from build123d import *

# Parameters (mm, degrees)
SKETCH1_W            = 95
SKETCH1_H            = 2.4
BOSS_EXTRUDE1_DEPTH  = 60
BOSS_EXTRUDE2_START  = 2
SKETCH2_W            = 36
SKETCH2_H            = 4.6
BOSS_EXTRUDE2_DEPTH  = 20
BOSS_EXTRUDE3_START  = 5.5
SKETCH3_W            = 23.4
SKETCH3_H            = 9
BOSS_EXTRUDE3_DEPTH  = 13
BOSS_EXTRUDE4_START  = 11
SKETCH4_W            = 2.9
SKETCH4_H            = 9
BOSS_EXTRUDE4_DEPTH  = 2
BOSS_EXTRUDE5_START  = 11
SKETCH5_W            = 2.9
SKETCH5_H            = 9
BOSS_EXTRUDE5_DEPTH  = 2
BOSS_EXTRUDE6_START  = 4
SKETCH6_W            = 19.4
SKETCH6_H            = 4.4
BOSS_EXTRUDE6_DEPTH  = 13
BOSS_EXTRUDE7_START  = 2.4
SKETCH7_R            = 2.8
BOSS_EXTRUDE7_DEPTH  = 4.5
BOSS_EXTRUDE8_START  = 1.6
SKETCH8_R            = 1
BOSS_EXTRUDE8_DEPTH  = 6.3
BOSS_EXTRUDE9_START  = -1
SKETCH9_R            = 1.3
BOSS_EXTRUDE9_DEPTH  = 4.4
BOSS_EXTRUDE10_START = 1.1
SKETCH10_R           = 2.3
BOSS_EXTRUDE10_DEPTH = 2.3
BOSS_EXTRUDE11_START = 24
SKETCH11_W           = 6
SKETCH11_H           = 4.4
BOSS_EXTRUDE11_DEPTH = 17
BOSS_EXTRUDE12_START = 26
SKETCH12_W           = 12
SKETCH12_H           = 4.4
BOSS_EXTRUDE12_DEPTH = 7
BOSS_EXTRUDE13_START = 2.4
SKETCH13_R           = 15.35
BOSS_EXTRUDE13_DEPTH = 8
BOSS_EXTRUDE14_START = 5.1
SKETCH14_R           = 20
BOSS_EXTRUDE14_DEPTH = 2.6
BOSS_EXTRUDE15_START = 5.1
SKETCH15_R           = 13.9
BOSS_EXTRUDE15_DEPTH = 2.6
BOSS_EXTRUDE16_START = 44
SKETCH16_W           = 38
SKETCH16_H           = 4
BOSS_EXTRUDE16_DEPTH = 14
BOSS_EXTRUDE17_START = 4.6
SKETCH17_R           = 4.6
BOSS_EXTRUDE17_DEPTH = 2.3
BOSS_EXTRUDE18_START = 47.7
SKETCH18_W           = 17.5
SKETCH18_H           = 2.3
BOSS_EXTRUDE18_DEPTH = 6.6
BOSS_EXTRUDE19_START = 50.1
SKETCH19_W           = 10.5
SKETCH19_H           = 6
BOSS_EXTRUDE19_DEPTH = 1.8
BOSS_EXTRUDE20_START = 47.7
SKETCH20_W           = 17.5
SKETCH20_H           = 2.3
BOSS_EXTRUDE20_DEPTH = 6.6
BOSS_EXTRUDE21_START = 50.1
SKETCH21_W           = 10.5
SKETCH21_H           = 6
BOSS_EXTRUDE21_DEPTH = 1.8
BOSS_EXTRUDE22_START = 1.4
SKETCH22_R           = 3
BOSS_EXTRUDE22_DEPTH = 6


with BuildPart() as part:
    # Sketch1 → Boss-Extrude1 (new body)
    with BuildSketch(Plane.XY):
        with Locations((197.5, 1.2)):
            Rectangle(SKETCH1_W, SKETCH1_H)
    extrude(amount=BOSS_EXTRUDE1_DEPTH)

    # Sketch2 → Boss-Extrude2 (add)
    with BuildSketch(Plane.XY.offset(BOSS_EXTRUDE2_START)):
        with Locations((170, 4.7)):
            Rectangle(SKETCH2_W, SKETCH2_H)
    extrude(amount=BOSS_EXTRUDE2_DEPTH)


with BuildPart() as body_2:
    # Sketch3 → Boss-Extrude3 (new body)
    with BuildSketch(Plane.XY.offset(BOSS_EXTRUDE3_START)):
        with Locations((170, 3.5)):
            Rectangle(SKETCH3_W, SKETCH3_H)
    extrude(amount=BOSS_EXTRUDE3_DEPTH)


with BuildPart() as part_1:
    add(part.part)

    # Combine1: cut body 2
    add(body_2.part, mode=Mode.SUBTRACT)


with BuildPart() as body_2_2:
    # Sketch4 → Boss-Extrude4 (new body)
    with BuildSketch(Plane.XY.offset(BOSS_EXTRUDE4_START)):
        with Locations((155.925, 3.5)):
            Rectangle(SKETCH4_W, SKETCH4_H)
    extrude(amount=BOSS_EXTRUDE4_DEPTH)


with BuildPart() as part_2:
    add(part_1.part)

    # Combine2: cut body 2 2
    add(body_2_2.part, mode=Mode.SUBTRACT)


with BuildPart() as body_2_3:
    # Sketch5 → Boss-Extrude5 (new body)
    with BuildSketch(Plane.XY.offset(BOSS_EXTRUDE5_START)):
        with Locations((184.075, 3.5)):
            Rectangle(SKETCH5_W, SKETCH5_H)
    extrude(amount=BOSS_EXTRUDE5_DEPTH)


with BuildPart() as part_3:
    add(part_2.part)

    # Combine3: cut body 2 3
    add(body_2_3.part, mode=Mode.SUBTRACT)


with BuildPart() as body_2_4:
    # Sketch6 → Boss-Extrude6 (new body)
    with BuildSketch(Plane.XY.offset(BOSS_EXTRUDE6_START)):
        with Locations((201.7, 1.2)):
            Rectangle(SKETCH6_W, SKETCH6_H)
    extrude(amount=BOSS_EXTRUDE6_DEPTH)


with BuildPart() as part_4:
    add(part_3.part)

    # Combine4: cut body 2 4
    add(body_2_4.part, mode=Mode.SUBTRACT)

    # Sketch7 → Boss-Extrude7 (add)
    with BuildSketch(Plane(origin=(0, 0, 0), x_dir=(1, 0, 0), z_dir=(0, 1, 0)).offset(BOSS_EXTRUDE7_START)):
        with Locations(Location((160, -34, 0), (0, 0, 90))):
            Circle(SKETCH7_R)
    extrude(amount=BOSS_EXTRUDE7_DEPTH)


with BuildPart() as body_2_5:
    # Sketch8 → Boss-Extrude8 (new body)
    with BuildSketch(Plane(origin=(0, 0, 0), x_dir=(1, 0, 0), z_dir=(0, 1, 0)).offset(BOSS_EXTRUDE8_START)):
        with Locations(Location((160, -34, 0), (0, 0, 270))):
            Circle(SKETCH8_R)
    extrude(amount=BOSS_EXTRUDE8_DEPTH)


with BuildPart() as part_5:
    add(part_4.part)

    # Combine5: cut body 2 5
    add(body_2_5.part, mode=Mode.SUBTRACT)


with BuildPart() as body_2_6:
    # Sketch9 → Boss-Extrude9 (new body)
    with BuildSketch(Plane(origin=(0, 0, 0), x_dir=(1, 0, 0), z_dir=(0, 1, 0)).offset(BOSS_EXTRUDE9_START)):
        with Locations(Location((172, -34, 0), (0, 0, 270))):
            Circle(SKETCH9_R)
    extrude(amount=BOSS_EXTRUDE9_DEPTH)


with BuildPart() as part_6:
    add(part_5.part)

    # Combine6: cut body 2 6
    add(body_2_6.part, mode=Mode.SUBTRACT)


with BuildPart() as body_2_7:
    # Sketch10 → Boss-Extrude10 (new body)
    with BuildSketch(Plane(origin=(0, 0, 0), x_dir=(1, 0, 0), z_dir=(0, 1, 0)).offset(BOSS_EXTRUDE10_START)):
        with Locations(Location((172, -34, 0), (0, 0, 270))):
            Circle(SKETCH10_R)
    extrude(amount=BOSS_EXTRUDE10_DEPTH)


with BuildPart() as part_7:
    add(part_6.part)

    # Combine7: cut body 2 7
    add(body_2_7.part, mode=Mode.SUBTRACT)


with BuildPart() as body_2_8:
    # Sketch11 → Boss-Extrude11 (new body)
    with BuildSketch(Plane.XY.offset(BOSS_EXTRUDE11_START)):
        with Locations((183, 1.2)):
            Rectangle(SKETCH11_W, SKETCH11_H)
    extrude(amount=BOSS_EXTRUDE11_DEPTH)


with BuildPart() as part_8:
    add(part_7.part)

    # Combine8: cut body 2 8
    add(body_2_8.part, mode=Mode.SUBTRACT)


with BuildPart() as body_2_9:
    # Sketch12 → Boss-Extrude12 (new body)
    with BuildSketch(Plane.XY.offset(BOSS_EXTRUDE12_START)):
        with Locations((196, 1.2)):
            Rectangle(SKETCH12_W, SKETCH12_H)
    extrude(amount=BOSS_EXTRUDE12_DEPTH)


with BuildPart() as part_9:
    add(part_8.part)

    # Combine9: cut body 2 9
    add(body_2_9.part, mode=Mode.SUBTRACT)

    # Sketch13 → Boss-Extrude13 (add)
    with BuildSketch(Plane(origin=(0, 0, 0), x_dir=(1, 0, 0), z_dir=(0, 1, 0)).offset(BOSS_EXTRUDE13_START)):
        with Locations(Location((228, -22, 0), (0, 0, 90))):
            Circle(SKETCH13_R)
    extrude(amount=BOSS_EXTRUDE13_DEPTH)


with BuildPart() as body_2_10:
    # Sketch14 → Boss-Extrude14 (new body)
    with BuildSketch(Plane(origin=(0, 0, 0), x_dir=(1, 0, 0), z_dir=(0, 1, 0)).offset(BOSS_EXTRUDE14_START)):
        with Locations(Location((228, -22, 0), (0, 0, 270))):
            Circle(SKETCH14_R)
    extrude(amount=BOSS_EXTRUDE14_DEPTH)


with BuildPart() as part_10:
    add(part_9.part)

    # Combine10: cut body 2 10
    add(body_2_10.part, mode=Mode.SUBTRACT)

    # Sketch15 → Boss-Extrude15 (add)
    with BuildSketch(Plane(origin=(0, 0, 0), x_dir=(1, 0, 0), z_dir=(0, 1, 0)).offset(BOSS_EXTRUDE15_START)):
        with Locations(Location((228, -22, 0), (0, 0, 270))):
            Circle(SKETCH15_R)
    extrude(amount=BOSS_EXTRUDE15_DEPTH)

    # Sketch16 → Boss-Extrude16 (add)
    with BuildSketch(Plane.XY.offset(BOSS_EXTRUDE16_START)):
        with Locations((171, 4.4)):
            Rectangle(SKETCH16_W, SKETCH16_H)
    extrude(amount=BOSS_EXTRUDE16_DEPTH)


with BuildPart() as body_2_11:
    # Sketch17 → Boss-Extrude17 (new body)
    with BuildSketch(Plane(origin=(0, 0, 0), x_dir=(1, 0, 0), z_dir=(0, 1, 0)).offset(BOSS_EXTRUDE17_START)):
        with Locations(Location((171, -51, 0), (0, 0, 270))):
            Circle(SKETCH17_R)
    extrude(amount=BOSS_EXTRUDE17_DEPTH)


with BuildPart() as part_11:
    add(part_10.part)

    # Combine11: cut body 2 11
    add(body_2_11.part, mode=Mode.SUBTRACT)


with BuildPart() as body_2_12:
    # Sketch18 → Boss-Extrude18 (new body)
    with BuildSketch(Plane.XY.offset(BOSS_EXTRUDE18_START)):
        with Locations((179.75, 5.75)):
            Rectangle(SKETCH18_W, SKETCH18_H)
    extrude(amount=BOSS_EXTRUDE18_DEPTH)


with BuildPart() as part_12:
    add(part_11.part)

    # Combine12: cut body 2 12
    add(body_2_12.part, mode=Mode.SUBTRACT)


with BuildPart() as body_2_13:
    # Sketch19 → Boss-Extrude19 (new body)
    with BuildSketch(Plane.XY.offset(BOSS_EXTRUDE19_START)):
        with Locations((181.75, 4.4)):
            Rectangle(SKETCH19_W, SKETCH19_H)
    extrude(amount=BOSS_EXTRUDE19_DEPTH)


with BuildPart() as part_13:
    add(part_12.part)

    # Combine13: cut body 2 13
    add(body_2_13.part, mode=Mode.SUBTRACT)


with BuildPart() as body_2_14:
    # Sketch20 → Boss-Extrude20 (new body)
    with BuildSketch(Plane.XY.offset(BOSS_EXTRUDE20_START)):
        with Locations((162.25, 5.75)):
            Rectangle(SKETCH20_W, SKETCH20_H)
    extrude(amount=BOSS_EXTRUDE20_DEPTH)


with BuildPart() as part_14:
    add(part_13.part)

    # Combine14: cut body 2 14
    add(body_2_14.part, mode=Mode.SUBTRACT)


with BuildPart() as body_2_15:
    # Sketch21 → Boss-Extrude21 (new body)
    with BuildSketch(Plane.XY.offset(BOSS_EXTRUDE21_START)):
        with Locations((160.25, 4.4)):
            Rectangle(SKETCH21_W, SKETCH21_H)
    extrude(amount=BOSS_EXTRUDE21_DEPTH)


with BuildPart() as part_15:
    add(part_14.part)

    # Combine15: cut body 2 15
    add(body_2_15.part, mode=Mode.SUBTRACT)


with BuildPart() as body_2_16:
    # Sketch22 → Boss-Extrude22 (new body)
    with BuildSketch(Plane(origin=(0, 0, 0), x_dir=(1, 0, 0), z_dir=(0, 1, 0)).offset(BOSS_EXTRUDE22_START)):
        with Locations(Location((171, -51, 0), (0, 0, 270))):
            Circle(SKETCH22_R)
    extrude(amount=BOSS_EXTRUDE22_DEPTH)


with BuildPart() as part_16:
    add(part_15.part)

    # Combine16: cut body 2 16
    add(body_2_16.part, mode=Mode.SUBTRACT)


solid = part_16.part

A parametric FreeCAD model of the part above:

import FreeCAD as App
import Part
import Sketcher
from FreeCAD import Vector


def add_polygon(sketch, points):
    """Adds a closed chain of lines whose ends are joined by coincident constraints."""
    first, n = sketch.GeometryCount, len(points)
    for a, b in zip(points, points[1:] + points[:1]):
        sketch.addGeometry(Part.LineSegment(App.Vector(*a, 0), App.Vector(*b, 0)), False)
    for i in range(n):
        sketch.addConstraint(Sketcher.Constraint("Coincident", first + i, 2, first + (i + 1) % n, 1))

doc = App.newDocument("Part")
body = doc.addObject("PartDesign::Body", "Body")

# Sketch on XY plane
sketch1 = doc.addObject("Sketcher::SketchObject", "Sketch")
body.addObject(sketch1)
sketch1.AttachmentSupport = (doc.XY_Plane, [""])
sketch1.MapMode = "FlatFace"
add_polygon(sketch1, [(150, 2.4), (150, 0), (245, 0), (245, 2.4)])  # lines 0-3
sketch1.addConstraint(Sketcher.Constraint("Vertical", 0))
sketch1.addConstraint(Sketcher.Constraint("Horizontal", 1))
sketch1.addConstraint(Sketcher.Constraint("Vertical", 2))
sketch1.addConstraint(Sketcher.Constraint("Horizontal", 3))
sketch1.addConstraint(Sketcher.Constraint("PointOnObject", 0, 2, -1))
sketch1.addConstraint(Sketcher.Constraint("DistanceX", 1, 1, 1, 2, 95.0))
sketch1.addConstraint(Sketcher.Constraint("DistanceY", 0, 2, 0, 1, 2.4))
sketch1.addConstraint(Sketcher.Constraint("DistanceX", -1, 1, 0, 2, 150.0))
pad1 = doc.addObject("PartDesign::Pad", "Pad")
body.addObject(pad1)
pad1.Profile = sketch1
pad1.Length = 60

# Sketch on XY plane
sketch2 = doc.addObject("Sketcher::SketchObject", "Sketch001")
body.addObject(sketch2)
sketch2.AttachmentSupport = (doc.XY_Plane, [""])
sketch2.MapMode = "FlatFace"
sketch2.AttachmentOffset = App.Placement(Vector(0, 0, 2), App.Rotation())
add_polygon(sketch2, [(152, 7), (152, 2.4), (188, 2.4), (188, 7)])  # lines 0-3
sketch2.addConstraint(Sketcher.Constraint("Vertical", 0))
sketch2.addConstraint(Sketcher.Constraint("Horizontal", 1))
sketch2.addConstraint(Sketcher.Constraint("Vertical", 2))
sketch2.addConstraint(Sketcher.Constraint("Horizontal", 3))
sketch2.addConstraint(Sketcher.Constraint("DistanceX", 1, 1, 1, 2, 36.0))
sketch2.addConstraint(Sketcher.Constraint("DistanceY", 0, 2, 0, 1, 4.6))
sketch2.addConstraint(Sketcher.Constraint("DistanceX", -1, 1, 0, 2, 152.0))
sketch2.addConstraint(Sketcher.Constraint("DistanceY", -1, 1, 2, 2, 7.0))
pad2 = doc.addObject("PartDesign::Pad", "Pad001")
body.addObject(pad2)
pad2.Profile = sketch2
pad2.Length = 20
body2 = doc.addObject("PartDesign::Body", "Body001")

# Sketch on XY plane
sketch3 = doc.addObject("Sketcher::SketchObject", "Sketch002")
body2.addObject(sketch3)
sketch3.AttachmentSupport = (doc.getObject("XY_Plane001"), [""])
sketch3.MapMode = "FlatFace"
sketch3.AttachmentOffset = App.Placement(Vector(0, 0, 5.5), App.Rotation())
add_polygon(sketch3, [(158, 8), (158, -1), (182, -1), (182, 8)])  # lines 0-3
sketch3.addConstraint(Sketcher.Constraint("Vertical", 0))
sketch3.addConstraint(Sketcher.Constraint("Horizontal", 1))
sketch3.addConstraint(Sketcher.Constraint("Vertical", 2))
sketch3.addConstraint(Sketcher.Constraint("Horizontal", 3))
sketch3.addConstraint(Sketcher.Constraint("DistanceY", 0, 2, 0, 1, 9.0))
sketch3.addConstraint(Sketcher.Constraint("DistanceX", 1, 1, 1, 2, 23.4))
sketch3.addConstraint(Sketcher.Constraint("DistanceY", 0, 2, -1, 1, 1.0))
sketch3.addConstraint(Sketcher.Constraint("DistanceX", -1, 1, 0, 2, 158.3))
pad3 = doc.addObject("PartDesign::Pad", "Pad002")
body2.addObject(pad3)
pad3.Profile = sketch3
pad3.Length = 13
doc.recompute()

boolean = doc.addObject("PartDesign::Boolean", "Boolean")
body.addObject(boolean)
boolean.Type = "Cut"
boolean.addObjects([body2])
body3 = doc.addObject("PartDesign::Body", "Body002")

# Sketch on XY plane
sketch4 = doc.addObject("Sketcher::SketchObject", "Sketch003")
body3.addObject(sketch4)
sketch4.AttachmentSupport = (doc.getObject("XY_Plane002"), [""])
sketch4.MapMode = "FlatFace"
sketch4.AttachmentOffset = App.Placement(Vector(0, 0, 11), App.Rotation())
add_polygon(sketch4, [(154.5, 8), (154.5, -1), (157.4, -1), (157.4, 8)])  # lines 0-3
sketch4.addConstraint(Sketcher.Constraint("Vertical", 0))
sketch4.addConstraint(Sketcher.Constraint("Horizontal", 1))
sketch4.addConstraint(Sketcher.Constraint("Vertical", 2))
sketch4.addConstraint(Sketcher.Constraint("Horizontal", 3))
sketch4.addConstraint(Sketcher.Constraint("DistanceY", 0, 2, 0, 1, 9.0))
sketch4.addConstraint(Sketcher.Constraint("DistanceX", 1, 1, 1, 2, 2.9))
sketch4.addConstraint(Sketcher.Constraint("DistanceY", 0, 2, -1, 1, 1.0))
sketch4.addConstraint(Sketcher.Constraint("DistanceX", -1, 1, 0, 2, 154.475))
pad4 = doc.addObject("PartDesign::Pad", "Pad003")
body3.addObject(pad4)
pad4.Profile = sketch4
pad4.Length = 2
doc.recompute()

boolean2 = doc.addObject("PartDesign::Boolean", "Boolean001")
body.addObject(boolean2)
boolean2.Type = "Cut"
boolean2.addObjects([body3])
body4 = doc.addObject("PartDesign::Body", "Body003")

# Sketch on XY plane
sketch5 = doc.addObject("Sketcher::SketchObject", "Sketch004")
body4.addObject(sketch5)
sketch5.AttachmentSupport = (doc.getObject("XY_Plane003"), [""])
sketch5.MapMode = "FlatFace"
sketch5.AttachmentOffset = App.Placement(Vector(0, 0, 11), App.Rotation())
add_polygon(sketch5, [(182.6, 8), (182.6, -1), (185.5, -1), (185.5, 8)])  # lines 0-3
sketch5.addConstraint(Sketcher.Constraint("Vertical", 0))
sketch5.addConstraint(Sketcher.Constraint("Horizontal", 1))
sketch5.addConstraint(Sketcher.Constraint("Vertical", 2))
sketch5.addConstraint(Sketcher.Constraint("Horizontal", 3))
sketch5.addConstraint(Sketcher.Constraint("DistanceY", 0, 2, 0, 1, 9.0))
sketch5.addConstraint(Sketcher.Constraint("DistanceX", 1, 1, 1, 2, 2.9))
sketch5.addConstraint(Sketcher.Constraint("DistanceY", 0, 2, -1, 1, 1.0))
sketch5.addConstraint(Sketcher.Constraint("DistanceX", -1, 1, 0, 2, 182.625))
pad5 = doc.addObject("PartDesign::Pad", "Pad004")
body4.addObject(pad5)
pad5.Profile = sketch5
pad5.Length = 2
doc.recompute()

boolean3 = doc.addObject("PartDesign::Boolean", "Boolean002")
body.addObject(boolean3)
boolean3.Type = "Cut"
boolean3.addObjects([body4])
body5 = doc.addObject("PartDesign::Body", "Body004")

# Sketch on XY plane
sketch6 = doc.addObject("Sketcher::SketchObject", "Sketch005")
body5.addObject(sketch6)
sketch6.AttachmentSupport = (doc.getObject("XY_Plane004"), [""])
sketch6.MapMode = "FlatFace"
sketch6.AttachmentOffset = App.Placement(Vector(0, 0, 4), App.Rotation())
add_polygon(sketch6, [(192, 3.4), (192, -1), (211.4, -1), (211.4, 3.4)])  # lines 0-3
sketch6.addConstraint(Sketcher.Constraint("Vertical", 0))
sketch6.addConstraint(Sketcher.Constraint("Horizontal", 1))
sketch6.addConstraint(Sketcher.Constraint("Vertical", 2))
sketch6.addConstraint(Sketcher.Constraint("Horizontal", 3))
sketch6.addConstraint(Sketcher.Constraint("DistanceX", 1, 1, 1, 2, 19.4))
sketch6.addConstraint(Sketcher.Constraint("DistanceY", 0, 2, 0, 1, 4.4))
sketch6.addConstraint(Sketcher.Constraint("DistanceX", -1, 1, 0, 2, 192.0))
sketch6.addConstraint(Sketcher.Constraint("DistanceY", 0, 2, -1, 1, 1.0))
pad6 = doc.addObject("PartDesign::Pad", "Pad005")
body5.addObject(pad6)
pad6.Profile = sketch6
pad6.Length = 13
doc.recompute()

boolean4 = doc.addObject("PartDesign::Boolean", "Boolean003")
body.addObject(boolean4)
boolean4.Type = "Cut"
boolean4.addObjects([body5])

# Sketch on XZ plane
sketch7 = doc.addObject("Sketcher::SketchObject", "Sketch006")
body.addObject(sketch7)
sketch7.AttachmentSupport = (doc.XZ_Plane, [""])
sketch7.MapMode = "FlatFace"
sketch7.AttachmentOffset = App.Placement(Vector(0, 0, -2.4), App.Rotation())
sketch7.addGeometry(Part.Circle(Vector(160, 34, 0), Vector(0, 0, 1), 2.8), False)
sketch7.addConstraint(Sketcher.Constraint("Diameter", 0, 5.6))
sketch7.addConstraint(Sketcher.Constraint("DistanceX", -1, 1, 0, 3, 160.0))
sketch7.addConstraint(Sketcher.Constraint("DistanceY", -1, 1, 0, 3, 34.0))
pad7 = doc.addObject("PartDesign::Pad", "Pad006")
body.addObject(pad7)
pad7.Profile = sketch7
pad7.Length = 4.5
pad7.Reversed = True
body6 = doc.addObject("PartDesign::Body", "Body005")

# Sketch on XZ plane
sketch8 = doc.addObject("Sketcher::SketchObject", "Sketch007")
body6.addObject(sketch8)
sketch8.AttachmentSupport = (doc.getObject("XZ_Plane005"), [""])
sketch8.MapMode = "FlatFace"
sketch8.AttachmentOffset = App.Placement(Vector(0, 0, -1.6), App.Rotation())
sketch8.addGeometry(Part.Circle(Vector(160, 34, 0), Vector(0, 0, 1), 1), False)
sketch8.addConstraint(Sketcher.Constraint("Diameter", 0, 2.0))
sketch8.addConstraint(Sketcher.Constraint("DistanceX", -1, 1, 0, 3, 160.0))
sketch8.addConstraint(Sketcher.Constraint("DistanceY", -1, 1, 0, 3, 34.0))
pad8 = doc.addObject("PartDesign::Pad", "Pad007")
body6.addObject(pad8)
pad8.Profile = sketch8
pad8.Length = 6.3
pad8.Reversed = True
doc.recompute()

boolean5 = doc.addObject("PartDesign::Boolean", "Boolean004")
body.addObject(boolean5)
boolean5.Type = "Cut"
boolean5.addObjects([body6])
body7 = doc.addObject("PartDesign::Body", "Body006")

# Sketch on XZ plane
sketch9 = doc.addObject("Sketcher::SketchObject", "Sketch008")
body7.addObject(sketch9)
sketch9.AttachmentSupport = (doc.getObject("XZ_Plane006"), [""])
sketch9.MapMode = "FlatFace"
sketch9.AttachmentOffset = App.Placement(Vector(0, 0, 1), App.Rotation())
sketch9.addGeometry(Part.Circle(Vector(172, 34, 0), Vector(0, 0, 1), 1.3), False)
sketch9.addConstraint(Sketcher.Constraint("Diameter", 0, 2.6))
sketch9.addConstraint(Sketcher.Constraint("DistanceX", -1, 1, 0, 3, 172.0))
sketch9.addConstraint(Sketcher.Constraint("DistanceY", -1, 1, 0, 3, 34.0))
pad9 = doc.addObject("PartDesign::Pad", "Pad008")
body7.addObject(pad9)
pad9.Profile = sketch9
pad9.Length = 4.4
pad9.Reversed = True
doc.recompute()

boolean6 = doc.addObject("PartDesign::Boolean", "Boolean005")
body.addObject(boolean6)
boolean6.Type = "Cut"
boolean6.addObjects([body7])
body8 = doc.addObject("PartDesign::Body", "Body007")

# Sketch on XZ plane
sketch10 = doc.addObject("Sketcher::SketchObject", "Sketch009")
body8.addObject(sketch10)
sketch10.AttachmentSupport = (doc.getObject("XZ_Plane007"), [""])
sketch10.MapMode = "FlatFace"
sketch10.AttachmentOffset = App.Placement(Vector(0, 0, -1.1), App.Rotation())
sketch10.addGeometry(Part.Circle(Vector(172, 34, 0), Vector(0, 0, 1), 2.3), False)
sketch10.addConstraint(Sketcher.Constraint("Diameter", 0, 4.6))
sketch10.addConstraint(Sketcher.Constraint("DistanceX", -1, 1, 0, 3, 172.0))
sketch10.addConstraint(Sketcher.Constraint("DistanceY", -1, 1, 0, 3, 34.0))
pad10 = doc.addObject("PartDesign::Pad", "Pad009")
body8.addObject(pad10)
pad10.Profile = sketch10
pad10.Length = 2.3
pad10.Reversed = True
doc.recompute()

boolean7 = doc.addObject("PartDesign::Boolean", "Boolean006")
body.addObject(boolean7)
boolean7.Type = "Cut"
boolean7.addObjects([body8])
body9 = doc.addObject("PartDesign::Body", "Body008")

# Sketch on XY plane
sketch11 = doc.addObject("Sketcher::SketchObject", "Sketch010")
body9.addObject(sketch11)
sketch11.AttachmentSupport = (doc.getObject("XY_Plane008"), [""])
sketch11.MapMode = "FlatFace"
sketch11.AttachmentOffset = App.Placement(Vector(0, 0, 24), App.Rotation())
add_polygon(sketch11, [(180, 3.4), (180, -1), (186, -1), (186, 3.4)])  # lines 0-3
sketch11.addConstraint(Sketcher.Constraint("Vertical", 0))
sketch11.addConstraint(Sketcher.Constraint("Horizontal", 1))
sketch11.addConstraint(Sketcher.Constraint("Vertical", 2))
sketch11.addConstraint(Sketcher.Constraint("Horizontal", 3))
sketch11.addConstraint(Sketcher.Constraint("DistanceX", 1, 1, 1, 2, 6.0))
sketch11.addConstraint(Sketcher.Constraint("DistanceY", 0, 2, 0, 1, 4.4))
sketch11.addConstraint(Sketcher.Constraint("DistanceX", -1, 1, 0, 2, 180.0))
sketch11.addConstraint(Sketcher.Constraint("DistanceY", 0, 2, -1, 1, 1.0))
pad11 = doc.addObject("PartDesign::Pad", "Pad010")
body9.addObject(pad11)
pad11.Profile = sketch11
pad11.Length = 17
doc.recompute()

boolean8 = doc.addObject("PartDesign::Boolean", "Boolean007")
body.addObject(boolean8)
boolean8.Type = "Cut"
boolean8.addObjects([body9])
body10 = doc.addObject("PartDesign::Body", "Body009")

# Sketch on XY plane
sketch12 = doc.addObject("Sketcher::SketchObject", "Sketch011")
body10.addObject(sketch12)
sketch12.AttachmentSupport = (doc.getObject("XY_Plane009"), [""])
sketch12.MapMode = "FlatFace"
sketch12.AttachmentOffset = App.Placement(Vector(0, 0, 26), App.Rotation())
add_polygon(sketch12, [(190, 3.4), (190, -1), (202, -1), (202, 3.4)])  # lines 0-3
sketch12.addConstraint(Sketcher.Constraint("Vertical", 0))
sketch12.addConstraint(Sketcher.Constraint("Horizontal", 1))
sketch12.addConstraint(Sketcher.Constraint("Vertical", 2))
sketch12.addConstraint(Sketcher.Constraint("Horizontal", 3))
sketch12.addConstraint(Sketcher.Constraint("DistanceX", 1, 1, 1, 2, 12.0))
sketch12.addConstraint(Sketcher.Constraint("DistanceY", 0, 2, 0, 1, 4.4))
sketch12.addConstraint(Sketcher.Constraint("DistanceX", -1, 1, 0, 2, 190.0))
sketch12.addConstraint(Sketcher.Constraint("DistanceY", 0, 2, -1, 1, 1.0))
pad12 = doc.addObject("PartDesign::Pad", "Pad011")
body10.addObject(pad12)
pad12.Profile = sketch12
pad12.Length = 7
doc.recompute()

boolean9 = doc.addObject("PartDesign::Boolean", "Boolean008")
body.addObject(boolean9)
boolean9.Type = "Cut"
boolean9.addObjects([body10])

# Sketch on XZ plane
sketch13 = doc.addObject("Sketcher::SketchObject", "Sketch012")
body.addObject(sketch13)
sketch13.AttachmentSupport = (doc.XZ_Plane, [""])
sketch13.MapMode = "FlatFace"
sketch13.AttachmentOffset = App.Placement(Vector(0, 0, -2.4), App.Rotation())
sketch13.addGeometry(Part.Circle(Vector(228, 22, 0), Vector(0, 0, 1), 15), False)
sketch13.addConstraint(Sketcher.Constraint("Diameter", 0, 30.7))
sketch13.addConstraint(Sketcher.Constraint("DistanceX", -1, 1, 0, 3, 228.0))
sketch13.addConstraint(Sketcher.Constraint("DistanceY", -1, 1, 0, 3, 22.0))
pad13 = doc.addObject("PartDesign::Pad", "Pad012")
body.addObject(pad13)
pad13.Profile = sketch13
pad13.Length = 8
pad13.Reversed = True
body11 = doc.addObject("PartDesign::Body", "Body010")

# Sketch on XZ plane
sketch14 = doc.addObject("Sketcher::SketchObject", "Sketch013")
body11.addObject(sketch14)
sketch14.AttachmentSupport = (doc.getObject("XZ_Plane010"), [""])
sketch14.MapMode = "FlatFace"
sketch14.AttachmentOffset = App.Placement(Vector(0, 0, -5.1), App.Rotation())
sketch14.addGeometry(Part.Circle(Vector(228, 22, 0), Vector(0, 0, 1), 20), False)
sketch14.addConstraint(Sketcher.Constraint("Diameter", 0, 40.0))
sketch14.addConstraint(Sketcher.Constraint("DistanceX", -1, 1, 0, 3, 228.0))
sketch14.addConstraint(Sketcher.Constraint("DistanceY", -1, 1, 0, 3, 22.0))
pad14 = doc.addObject("PartDesign::Pad", "Pad013")
body11.addObject(pad14)
pad14.Profile = sketch14
pad14.Length = 2.6
pad14.Reversed = True
body.AllowCompound = True
doc.recompute()

boolean10 = doc.addObject("PartDesign::Boolean", "Boolean009")
body.addObject(boolean10)
boolean10.Type = "Cut"
boolean10.addObjects([body11])

# Sketch on XZ plane
sketch15 = doc.addObject("Sketcher::SketchObject", "Sketch014")
body.addObject(sketch15)
sketch15.AttachmentSupport = (doc.XZ_Plane, [""])
sketch15.MapMode = "FlatFace"
sketch15.AttachmentOffset = App.Placement(Vector(0, 0, -5.1), App.Rotation())
sketch15.addGeometry(Part.Circle(Vector(228, 22, 0), Vector(0, 0, 1), 14), False)
sketch15.addConstraint(Sketcher.Constraint("Diameter", 0, 27.8))
sketch15.addConstraint(Sketcher.Constraint("DistanceX", -1, 1, 0, 3, 228.0))
sketch15.addConstraint(Sketcher.Constraint("DistanceY", -1, 1, 0, 3, 22.0))
pad15 = doc.addObject("PartDesign::Pad", "Pad014")
body.addObject(pad15)
pad15.Profile = sketch15
pad15.Length = 2.6
pad15.Reversed = True

# Sketch on XY plane
sketch16 = doc.addObject("Sketcher::SketchObject", "Sketch015")
body.addObject(sketch16)
sketch16.AttachmentSupport = (doc.XY_Plane, [""])
sketch16.MapMode = "FlatFace"
sketch16.AttachmentOffset = App.Placement(Vector(0, 0, 44), App.Rotation())
add_polygon(sketch16, [(152, 6.4), (152, 2.4), (190, 2.4), (190, 6.4)])  # lines 0-3
sketch16.addConstraint(Sketcher.Constraint("Vertical", 0))
sketch16.addConstraint(Sketcher.Constraint("Horizontal", 1))
sketch16.addConstraint(Sketcher.Constraint("Vertical", 2))
sketch16.addConstraint(Sketcher.Constraint("Horizontal", 3))
sketch16.addConstraint(Sketcher.Constraint("DistanceX", 1, 1, 1, 2, 38.0))
sketch16.addConstraint(Sketcher.Constraint("DistanceY", 0, 2, 0, 1, 4.0))
sketch16.addConstraint(Sketcher.Constraint("DistanceX", -1, 1, 0, 2, 152.0))
sketch16.addConstraint(Sketcher.Constraint("DistanceY", -1, 1, 0, 2, 2.4))
pad16 = doc.addObject("PartDesign::Pad", "Pad015")
body.addObject(pad16)
pad16.Profile = sketch16
pad16.Length = 14
body12 = doc.addObject("PartDesign::Body", "Body011")

# Sketch on XZ plane
sketch17 = doc.addObject("Sketcher::SketchObject", "Sketch016")
body12.addObject(sketch17)
sketch17.AttachmentSupport = (doc.getObject("XZ_Plane011"), [""])
sketch17.MapMode = "FlatFace"
sketch17.AttachmentOffset = App.Placement(Vector(0, 0, -4.6), App.Rotation())
sketch17.addGeometry(Part.Circle(Vector(171, 51, 0), Vector(0, 0, 1), 4.6), False)
sketch17.addConstraint(Sketcher.Constraint("Diameter", 0, 9.2))
sketch17.addConstraint(Sketcher.Constraint("DistanceX", -1, 1, 0, 3, 171.0))
sketch17.addConstraint(Sketcher.Constraint("DistanceY", -1, 1, 0, 3, 51.0))
pad17 = doc.addObject("PartDesign::Pad", "Pad016")
body12.addObject(pad17)
pad17.Profile = sketch17
pad17.Length = 2.3
pad17.Reversed = True
doc.recompute()

boolean11 = doc.addObject("PartDesign::Boolean", "Boolean010")
body.addObject(boolean11)
boolean11.Type = "Cut"
boolean11.addObjects([body12])
body13 = doc.addObject("PartDesign::Body", "Body012")

# Sketch on XY plane
sketch18 = doc.addObject("Sketcher::SketchObject", "Sketch017")
body13.addObject(sketch18)
sketch18.AttachmentSupport = (doc.getObject("XY_Plane012"), [""])
sketch18.MapMode = "FlatFace"
sketch18.AttachmentOffset = App.Placement(Vector(0, 0, 47.7), App.Rotation())
add_polygon(sketch18, [(171, 6.9), (171, 4.6), (188.5, 4.6), (188.5, 6.9)])  # lines 0-3
sketch18.addConstraint(Sketcher.Constraint("Vertical", 0))
sketch18.addConstraint(Sketcher.Constraint("Horizontal", 1))
sketch18.addConstraint(Sketcher.Constraint("Vertical", 2))
sketch18.addConstraint(Sketcher.Constraint("Horizontal", 3))
sketch18.addConstraint(Sketcher.Constraint("DistanceX", 1, 1, 1, 2, 17.5))
sketch18.addConstraint(Sketcher.Constraint("DistanceY", 0, 2, 0, 1, 2.3))
sketch18.addConstraint(Sketcher.Constraint("DistanceX", -1, 1, 0, 2, 171.0))
sketch18.addConstraint(Sketcher.Constraint("DistanceY", -1, 1, 0, 2, 4.6))
pad18 = doc.addObject("PartDesign::Pad", "Pad017")
body13.addObject(pad18)
pad18.Profile = sketch18
pad18.Length = 6.6
doc.recompute()

boolean12 = doc.addObject("PartDesign::Boolean", "Boolean011")
body.addObject(boolean12)
boolean12.Type = "Cut"
boolean12.addObjects([body13])
body14 = doc.addObject("PartDesign::Body", "Body013")

# Sketch on XY plane
sketch19 = doc.addObject("Sketcher::SketchObject", "Sketch018")
body14.addObject(sketch19)
sketch19.AttachmentSupport = (doc.getObject("XY_Plane013"), [""])
sketch19.MapMode = "FlatFace"
sketch19.AttachmentOffset = App.Placement(Vector(0, 0, 50.1), App.Rotation())
add_polygon(sketch19, [(176, 7), (176, 1), (187, 1), (187, 7)])  # lines 0-3
sketch19.addConstraint(Sketcher.Constraint("Vertical", 0))
sketch19.addConstraint(Sketcher.Constraint("Horizontal", 1))
sketch19.addConstraint(Sketcher.Constraint("Vertical", 2))
sketch19.addConstraint(Sketcher.Constraint("Horizontal", 3))
sketch19.addConstraint(Sketcher.Constraint("DistanceY", 0, 2, 0, 1, 6.0))
sketch19.addConstraint(Sketcher.Constraint("DistanceX", 1, 1, 1, 2, 10.5))
sketch19.addConstraint(Sketcher.Constraint("DistanceX", -1, 1, 1, 2, 187.0))
sketch19.addConstraint(Sketcher.Constraint("DistanceY", -1, 1, 0, 2, 1.4))
pad19 = doc.addObject("PartDesign::Pad", "Pad018")
body14.addObject(pad19)
pad19.Profile = sketch19
pad19.Length = 1.8
doc.recompute()

boolean13 = doc.addObject("PartDesign::Boolean", "Boolean012")
body.addObject(boolean13)
boolean13.Type = "Cut"
boolean13.addObjects([body14])
body15 = doc.addObject("PartDesign::Body", "Body014")

# Sketch on XY plane
sketch20 = doc.addObject("Sketcher::SketchObject", "Sketch019")
body15.addObject(sketch20)
sketch20.AttachmentSupport = (doc.getObject("XY_Plane014"), [""])
sketch20.MapMode = "FlatFace"
sketch20.AttachmentOffset = App.Placement(Vector(0, 0, 47.7), App.Rotation())
add_polygon(sketch20, [(153.5, 6.9), (153.5, 4.6), (171, 4.6), (171, 6.9)])  # lines 0-3
sketch20.addConstraint(Sketcher.Constraint("Vertical", 0))
sketch20.addConstraint(Sketcher.Constraint("Horizontal", 1))
sketch20.addConstraint(Sketcher.Constraint("Vertical", 2))
sketch20.addConstraint(Sketcher.Constraint("Horizontal", 3))
sketch20.addConstraint(Sketcher.Constraint("DistanceX", 1, 1, 1, 2, 17.5))
sketch20.addConstraint(Sketcher.Constraint("DistanceY", 0, 2, 0, 1, 2.3))
sketch20.addConstraint(Sketcher.Constraint("DistanceX", -1, 1, 1, 2, 171.0))
sketch20.addConstraint(Sketcher.Constraint("DistanceY", -1, 1, 0, 2, 4.6))
pad20 = doc.addObject("PartDesign::Pad", "Pad019")
body15.addObject(pad20)
pad20.Profile = sketch20
pad20.Length = 6.6
doc.recompute()

boolean14 = doc.addObject("PartDesign::Boolean", "Boolean013")
body.addObject(boolean14)
boolean14.Type = "Cut"
boolean14.addObjects([body15])
body16 = doc.addObject("PartDesign::Body", "Body015")

# Sketch on XY plane
sketch21 = doc.addObject("Sketcher::SketchObject", "Sketch020")
body16.addObject(sketch21)
sketch21.AttachmentSupport = (doc.getObject("XY_Plane015"), [""])
sketch21.MapMode = "FlatFace"
sketch21.AttachmentOffset = App.Placement(Vector(0, 0, 50.1), App.Rotation())
add_polygon(sketch21, [(155, 7), (155, 1), (166, 1), (166, 7)])  # lines 0-3
sketch21.addConstraint(Sketcher.Constraint("Vertical", 0))
sketch21.addConstraint(Sketcher.Constraint("Horizontal", 1))
sketch21.addConstraint(Sketcher.Constraint("Vertical", 2))
sketch21.addConstraint(Sketcher.Constraint("Horizontal", 3))
sketch21.addConstraint(Sketcher.Constraint("DistanceY", 0, 2, 0, 1, 6.0))
sketch21.addConstraint(Sketcher.Constraint("DistanceX", 1, 1, 1, 2, 10.5))
sketch21.addConstraint(Sketcher.Constraint("DistanceX", -1, 1, 0, 2, 155.0))
sketch21.addConstraint(Sketcher.Constraint("DistanceY", -1, 1, 0, 2, 1.4))
pad21 = doc.addObject("PartDesign::Pad", "Pad020")
body16.addObject(pad21)
pad21.Profile = sketch21
pad21.Length = 1.8
doc.recompute()

boolean15 = doc.addObject("PartDesign::Boolean", "Boolean014")
body.addObject(boolean15)
boolean15.Type = "Cut"
boolean15.addObjects([body16])
body17 = doc.addObject("PartDesign::Body", "Body016")

# Sketch on XZ plane
sketch22 = doc.addObject("Sketcher::SketchObject", "Sketch021")
body17.addObject(sketch22)
sketch22.AttachmentSupport = (doc.getObject("XZ_Plane016"), [""])
sketch22.MapMode = "FlatFace"
sketch22.AttachmentOffset = App.Placement(Vector(0, 0, -1.4), App.Rotation())
sketch22.addGeometry(Part.Circle(Vector(171, 51, 0), Vector(0, 0, 1), 3), False)
sketch22.addConstraint(Sketcher.Constraint("Diameter", 0, 6.0))
sketch22.addConstraint(Sketcher.Constraint("DistanceX", -1, 1, 0, 3, 171.0))
sketch22.addConstraint(Sketcher.Constraint("DistanceY", -1, 1, 0, 3, 51.0))
pad22 = doc.addObject("PartDesign::Pad", "Pad021")
body17.addObject(pad22)
pad22.Profile = sketch22
pad22.Length = 6
pad22.Reversed = True
doc.recompute()

boolean16 = doc.addObject("PartDesign::Boolean", "Boolean015")
body.addObject(boolean16)
boolean16.Type = "Cut"
boolean16.addObjects([body17])

doc.recompute()
